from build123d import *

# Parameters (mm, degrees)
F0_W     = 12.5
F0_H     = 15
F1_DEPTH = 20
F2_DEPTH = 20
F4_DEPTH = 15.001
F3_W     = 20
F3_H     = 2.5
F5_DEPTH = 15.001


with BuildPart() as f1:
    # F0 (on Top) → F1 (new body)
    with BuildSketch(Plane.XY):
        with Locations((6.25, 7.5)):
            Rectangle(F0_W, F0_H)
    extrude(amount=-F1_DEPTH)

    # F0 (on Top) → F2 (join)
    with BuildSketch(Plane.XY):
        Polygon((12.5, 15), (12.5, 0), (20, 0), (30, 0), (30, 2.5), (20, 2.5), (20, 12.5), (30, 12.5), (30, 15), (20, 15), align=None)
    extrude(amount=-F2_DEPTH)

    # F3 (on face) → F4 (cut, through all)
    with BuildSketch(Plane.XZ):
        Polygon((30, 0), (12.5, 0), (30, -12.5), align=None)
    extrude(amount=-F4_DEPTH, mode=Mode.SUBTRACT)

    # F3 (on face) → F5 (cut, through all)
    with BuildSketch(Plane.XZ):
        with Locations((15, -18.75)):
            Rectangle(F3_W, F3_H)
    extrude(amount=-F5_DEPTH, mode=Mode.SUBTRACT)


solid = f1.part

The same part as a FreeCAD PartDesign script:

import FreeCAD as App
import Part
import Sketcher
Q = App.Units.Quantity

doc = App.newDocument("Part")
body = doc.addObject("PartDesign::Body", "Body")

sketch1 = body.newObject("Sketcher::SketchObject", "Sketch")
sketch1.AttachmentSupport = (doc.getObject("XY_Plane"), [""])
sketch1.MapMode = "FlatFace"
sketch1.addGeometry(Part.LineSegment(App.Vector(0, 15, 0), App.Vector(0, 0, 0)), False)
sketch1.addGeometry(Part.LineSegment(App.Vector(0, 0, 0), App.Vector(12, 0, 0)), False)
sketch1.addGeometry(Part.LineSegment(App.Vector(12, 0, 0), App.Vector(12, 15, 0)), False)
sketch1.addGeometry(Part.LineSegment(App.Vector(12, 15, 0), App.Vector(0, 15, 0)), False)
sketch1.addConstraint(Sketcher.Constraint("Coincident", 0, 2, 1, 1))
sketch1.addConstraint(Sketcher.Constraint("Coincident", 1, 2, 2, 1))
sketch1.addConstraint(Sketcher.Constraint("Coincident", 2, 2, 3, 1))
sketch1.addConstraint(Sketcher.Constraint("Coincident", 3, 2, 0, 1))
sketch1.addConstraint(Sketcher.Constraint("Vertical", 0))
sketch1.addConstraint(Sketcher.Constraint("Horizontal", 1))
sketch1.addConstraint(Sketcher.Constraint("Vertical", 2))
sketch1.addConstraint(Sketcher.Constraint("Horizontal", 3))
sketch1.addConstraint(Sketcher.Constraint("Coincident", 0, 2, -1, 1))
sketch1.addConstraint(Sketcher.Constraint("DistanceY", 0, 2, 0, 1, Q("15 mm")))
sketch1.addConstraint(Sketcher.Constraint("DistanceX", 1, 1, 1, 2, Q("12.5 mm")))
pad1 = body.newObject("PartDesign::Pad", "Pad")
pad1.Profile = sketch1
pad1.Length = 20
pad1.Reversed = True

sketch2 = body.newObject("Sketcher::SketchObject", "Sketch001")
sketch2.AttachmentSupport = (doc.getObject("XY_Plane"), [""])
sketch2.MapMode = "FlatFace"
sketch2.addGeometry(Part.LineSegment(App.Vector(12.5, 15, 0), App.Vector(12.5, 0, 0)), False)
sketch2.addGeometry(Part.LineSegment(App.Vector(12.5, 0, 0), App.Vector(30, 0, 0)), False)
sketch2.addGeometry(Part.LineSegment(App.Vector(30, 0, 0), App.Vector(30, 2.5, 0)), False)
sketch2.addGeometry(Part.LineSegment(App.Vector(30, 2.5, 0), App.Vector(20, 2.5, 0)), False)
sketch2.addGeometry(Part.LineSegment(App.Vector(20, 2.5, 0), App.Vector(20, 12.5, 0)), False)
sketch2.addGeometry(Part.LineSegment(App.Vector(20, 12.5, 0), App.Vector(30, 12.5, 0)), False)
sketch2.addGeometry(Part.LineSegment(App.Vector(30, 12.5, 0), App.Vector(30, 15, 0)), False)
sketch2.addGeometry(Part.LineSegment(App.Vector(30, 15, 0), App.Vector(12.5, 15, 0)), False)
sketch2.addConstraint(Sketcher.Constraint("Coincident", 0, 2, 1, 1))
sketch2.addConstraint(Sketcher.Constraint("Coincident", 1, 2, 2, 1))
sketch2.addConstraint(Sketcher.Constraint("Coincident", 2, 2, 3, 1))
sketch2.addConstraint(Sketcher.Constraint("Coincident", 3, 2, 4, 1))
sketch2.addConstraint(Sketcher.Constraint("Coincident", 4, 2, 5, 1))
sketch2.addConstraint(Sketcher.Constraint("Coincident", 5, 2, 6, 1))
sketch2.addConstraint(Sketcher.Constraint("Coincident", 6, 2, 7, 1))
sketch2.addConstraint(Sketcher.Constraint("Coincident", 7, 2, 0, 1))
sketch2.addConstraint(Sketcher.Constraint("Vertical", 0))
sketch2.addConstraint(Sketcher.Constraint("Horizontal", 1))
sketch2.addConstraint(Sketcher.Constraint("Vertical", 2))
sketch2.addConstraint(Sketcher.Constraint("Horizontal", 3))
sketch2.addConstraint(Sketcher.Constraint("Vertical", 4))
sketch2.addConstraint(Sketcher.Constraint("Horizontal", 5))
sketch2.addConstraint(Sketcher.Constraint("Vertical", 6))
sketch2.addConstraint(Sketcher.Constraint("Horizontal", 7))
sketch2.addConstraint(Sketcher.Constraint("PointOnObject", 0, 2, -1))
sketch2.addConstraint(Sketcher.Constraint("Vertical", 2, 2, 5, 2))
sketch2.addConstraint(Sketcher.Constraint("Equal", 5, 4))
sketch2.addConstraint(Sketcher.Constraint("Equal", 2, 6))
sketch2.addConstraint(Sketcher.Constraint("DistanceX", 3, 2, 3, 1, Q("10 mm")))
sketch2.addConstraint(Sketcher.Constraint("DistanceY", 0, 2, 0, 1, Q("15 mm")))
sketch2.addConstraint(Sketcher.Constraint("DistanceX", 1, 1, 1, 2, Q("17.5 mm")))
sketch2.addConstraint(Sketcher.Constraint("DistanceX", -1, 1, 1, 2, Q("30 mm")))
pad2 = body.newObject("PartDesign::Pad", "Pad001")
pad2.Profile = sketch2
pad2.Length = 20
pad2.Reversed = True

sketch3 = body.newObject("Sketcher::SketchObject", "Sketch002")
sketch3.AttachmentSupport = (doc.getObject("XZ_Plane"), [""])
sketch3.MapMode = "FlatFace"
sketch3.addGeometry(Part.LineSegment(App.Vector(30, 0, 0), App.Vector(12, 0, 0)), False)
sketch3.addGeometry(Part.LineSegment(App.Vector(12, 0, 0), App.Vector(30, -12, 0)), False)
sketch3.addGeometry(Part.LineSegment(App.Vector(30, -12, 0), App.Vector(30, 0, 0)), False)
sketch3.addConstraint(Sketcher.Constraint("Coincident", 0, 2, 1, 1))
sketch3.addConstraint(Sketcher.Constraint("Coincident", 1, 2, 2, 1))
sketch3.addConstraint(Sketcher.Constraint("Coincident", 2, 2, 0, 1))
sketch3.addConstraint(Sketcher.Constraint("Horizontal", 0))
sketch3.addConstraint(Sketcher.Constraint("Vertical", 2))
sketch3.addConstraint(Sketcher.Constraint("PointOnObject", 0, 2, -1))
sketch3.addConstraint(Sketcher.Constraint("DistanceX", 0, 2, 0, 1, Q("17.5 mm")))
sketch3.addConstraint(Sketcher.Constraint("DistanceY", 2, 1, 2, 2, Q("12.5 mm")))
sketch3.addConstraint(Sketcher.Constraint("DistanceX", -1, 1, 1, 2, Q("30 mm")))
pocket1 = body.newObject("PartDesign::Pocket", "Pocket")
pocket1.Profile = sketch3
pocket1.Type = "ThroughAll"

sketch4 = body.newObject("Sketcher::SketchObject", "Sketch003")
sketch4.AttachmentSupport = (doc.getObject("XZ_Plane"), [""])
sketch4.MapMode = "FlatFace"
sketch4.addGeometry(Part.LineSegment(App.Vector(5, -17.5, 0), App.Vector(5, -20, 0)), False)
sketch4.addGeometry(Part.LineSegment(App.Vector(5, -20, 0), App.Vector(25, -20, 0)), False)
sketch4.addGeometry(Part.LineSegment(App.Vector(25, -20, 0), App.Vector(25, -17.5, 0)), False)
sketch4.addGeometry(Part.LineSegment(App.Vector(25, -17.5, 0), App.Vector(5, -17.5, 0)), False)
sketch4.addConstraint(Sketcher.Constraint("Coincident", 0, 2, 1, 1))
sketch4.addConstraint(Sketcher.Constraint("Coincident", 1, 2, 2, 1))
sketch4.addConstraint(Sketcher.Constraint("Coincident", 2, 2, 3, 1))
sketch4.addConstraint(Sketcher.Constraint("Coincident", 3, 2, 0, 1))
sketch4.addConstraint(Sketcher.Constraint("Vertical", 0))
sketch4.addConstraint(Sketcher.Constraint("Horizontal", 1))
sketch4.addConstraint(Sketcher.Constraint("Vertical", 2))
sketch4.addConstraint(Sketcher.Constraint("Horizontal", 3))
sketch4.addConstraint(Sketcher.Constraint("DistanceX", 1, 1, 1, 2, Q("20 mm")))
sketch4.addConstraint(Sketcher.Constraint("DistanceY", 0, 2, 0, 1, Q("2.5 mm")))
sketch4.addConstraint(Sketcher.Constraint("DistanceX", -1, 1, 0, 2, Q("5 mm")))
sketch4.addConstraint(Sketcher.Constraint("DistanceY", 0, 2, -1, 1, Q("20 mm")))
pocket2 = body.newObject("PartDesign::Pocket", "Pocket001")
pocket2.Profile = sketch4
pocket2.Type = "ThroughAll"

doc.recompute()
